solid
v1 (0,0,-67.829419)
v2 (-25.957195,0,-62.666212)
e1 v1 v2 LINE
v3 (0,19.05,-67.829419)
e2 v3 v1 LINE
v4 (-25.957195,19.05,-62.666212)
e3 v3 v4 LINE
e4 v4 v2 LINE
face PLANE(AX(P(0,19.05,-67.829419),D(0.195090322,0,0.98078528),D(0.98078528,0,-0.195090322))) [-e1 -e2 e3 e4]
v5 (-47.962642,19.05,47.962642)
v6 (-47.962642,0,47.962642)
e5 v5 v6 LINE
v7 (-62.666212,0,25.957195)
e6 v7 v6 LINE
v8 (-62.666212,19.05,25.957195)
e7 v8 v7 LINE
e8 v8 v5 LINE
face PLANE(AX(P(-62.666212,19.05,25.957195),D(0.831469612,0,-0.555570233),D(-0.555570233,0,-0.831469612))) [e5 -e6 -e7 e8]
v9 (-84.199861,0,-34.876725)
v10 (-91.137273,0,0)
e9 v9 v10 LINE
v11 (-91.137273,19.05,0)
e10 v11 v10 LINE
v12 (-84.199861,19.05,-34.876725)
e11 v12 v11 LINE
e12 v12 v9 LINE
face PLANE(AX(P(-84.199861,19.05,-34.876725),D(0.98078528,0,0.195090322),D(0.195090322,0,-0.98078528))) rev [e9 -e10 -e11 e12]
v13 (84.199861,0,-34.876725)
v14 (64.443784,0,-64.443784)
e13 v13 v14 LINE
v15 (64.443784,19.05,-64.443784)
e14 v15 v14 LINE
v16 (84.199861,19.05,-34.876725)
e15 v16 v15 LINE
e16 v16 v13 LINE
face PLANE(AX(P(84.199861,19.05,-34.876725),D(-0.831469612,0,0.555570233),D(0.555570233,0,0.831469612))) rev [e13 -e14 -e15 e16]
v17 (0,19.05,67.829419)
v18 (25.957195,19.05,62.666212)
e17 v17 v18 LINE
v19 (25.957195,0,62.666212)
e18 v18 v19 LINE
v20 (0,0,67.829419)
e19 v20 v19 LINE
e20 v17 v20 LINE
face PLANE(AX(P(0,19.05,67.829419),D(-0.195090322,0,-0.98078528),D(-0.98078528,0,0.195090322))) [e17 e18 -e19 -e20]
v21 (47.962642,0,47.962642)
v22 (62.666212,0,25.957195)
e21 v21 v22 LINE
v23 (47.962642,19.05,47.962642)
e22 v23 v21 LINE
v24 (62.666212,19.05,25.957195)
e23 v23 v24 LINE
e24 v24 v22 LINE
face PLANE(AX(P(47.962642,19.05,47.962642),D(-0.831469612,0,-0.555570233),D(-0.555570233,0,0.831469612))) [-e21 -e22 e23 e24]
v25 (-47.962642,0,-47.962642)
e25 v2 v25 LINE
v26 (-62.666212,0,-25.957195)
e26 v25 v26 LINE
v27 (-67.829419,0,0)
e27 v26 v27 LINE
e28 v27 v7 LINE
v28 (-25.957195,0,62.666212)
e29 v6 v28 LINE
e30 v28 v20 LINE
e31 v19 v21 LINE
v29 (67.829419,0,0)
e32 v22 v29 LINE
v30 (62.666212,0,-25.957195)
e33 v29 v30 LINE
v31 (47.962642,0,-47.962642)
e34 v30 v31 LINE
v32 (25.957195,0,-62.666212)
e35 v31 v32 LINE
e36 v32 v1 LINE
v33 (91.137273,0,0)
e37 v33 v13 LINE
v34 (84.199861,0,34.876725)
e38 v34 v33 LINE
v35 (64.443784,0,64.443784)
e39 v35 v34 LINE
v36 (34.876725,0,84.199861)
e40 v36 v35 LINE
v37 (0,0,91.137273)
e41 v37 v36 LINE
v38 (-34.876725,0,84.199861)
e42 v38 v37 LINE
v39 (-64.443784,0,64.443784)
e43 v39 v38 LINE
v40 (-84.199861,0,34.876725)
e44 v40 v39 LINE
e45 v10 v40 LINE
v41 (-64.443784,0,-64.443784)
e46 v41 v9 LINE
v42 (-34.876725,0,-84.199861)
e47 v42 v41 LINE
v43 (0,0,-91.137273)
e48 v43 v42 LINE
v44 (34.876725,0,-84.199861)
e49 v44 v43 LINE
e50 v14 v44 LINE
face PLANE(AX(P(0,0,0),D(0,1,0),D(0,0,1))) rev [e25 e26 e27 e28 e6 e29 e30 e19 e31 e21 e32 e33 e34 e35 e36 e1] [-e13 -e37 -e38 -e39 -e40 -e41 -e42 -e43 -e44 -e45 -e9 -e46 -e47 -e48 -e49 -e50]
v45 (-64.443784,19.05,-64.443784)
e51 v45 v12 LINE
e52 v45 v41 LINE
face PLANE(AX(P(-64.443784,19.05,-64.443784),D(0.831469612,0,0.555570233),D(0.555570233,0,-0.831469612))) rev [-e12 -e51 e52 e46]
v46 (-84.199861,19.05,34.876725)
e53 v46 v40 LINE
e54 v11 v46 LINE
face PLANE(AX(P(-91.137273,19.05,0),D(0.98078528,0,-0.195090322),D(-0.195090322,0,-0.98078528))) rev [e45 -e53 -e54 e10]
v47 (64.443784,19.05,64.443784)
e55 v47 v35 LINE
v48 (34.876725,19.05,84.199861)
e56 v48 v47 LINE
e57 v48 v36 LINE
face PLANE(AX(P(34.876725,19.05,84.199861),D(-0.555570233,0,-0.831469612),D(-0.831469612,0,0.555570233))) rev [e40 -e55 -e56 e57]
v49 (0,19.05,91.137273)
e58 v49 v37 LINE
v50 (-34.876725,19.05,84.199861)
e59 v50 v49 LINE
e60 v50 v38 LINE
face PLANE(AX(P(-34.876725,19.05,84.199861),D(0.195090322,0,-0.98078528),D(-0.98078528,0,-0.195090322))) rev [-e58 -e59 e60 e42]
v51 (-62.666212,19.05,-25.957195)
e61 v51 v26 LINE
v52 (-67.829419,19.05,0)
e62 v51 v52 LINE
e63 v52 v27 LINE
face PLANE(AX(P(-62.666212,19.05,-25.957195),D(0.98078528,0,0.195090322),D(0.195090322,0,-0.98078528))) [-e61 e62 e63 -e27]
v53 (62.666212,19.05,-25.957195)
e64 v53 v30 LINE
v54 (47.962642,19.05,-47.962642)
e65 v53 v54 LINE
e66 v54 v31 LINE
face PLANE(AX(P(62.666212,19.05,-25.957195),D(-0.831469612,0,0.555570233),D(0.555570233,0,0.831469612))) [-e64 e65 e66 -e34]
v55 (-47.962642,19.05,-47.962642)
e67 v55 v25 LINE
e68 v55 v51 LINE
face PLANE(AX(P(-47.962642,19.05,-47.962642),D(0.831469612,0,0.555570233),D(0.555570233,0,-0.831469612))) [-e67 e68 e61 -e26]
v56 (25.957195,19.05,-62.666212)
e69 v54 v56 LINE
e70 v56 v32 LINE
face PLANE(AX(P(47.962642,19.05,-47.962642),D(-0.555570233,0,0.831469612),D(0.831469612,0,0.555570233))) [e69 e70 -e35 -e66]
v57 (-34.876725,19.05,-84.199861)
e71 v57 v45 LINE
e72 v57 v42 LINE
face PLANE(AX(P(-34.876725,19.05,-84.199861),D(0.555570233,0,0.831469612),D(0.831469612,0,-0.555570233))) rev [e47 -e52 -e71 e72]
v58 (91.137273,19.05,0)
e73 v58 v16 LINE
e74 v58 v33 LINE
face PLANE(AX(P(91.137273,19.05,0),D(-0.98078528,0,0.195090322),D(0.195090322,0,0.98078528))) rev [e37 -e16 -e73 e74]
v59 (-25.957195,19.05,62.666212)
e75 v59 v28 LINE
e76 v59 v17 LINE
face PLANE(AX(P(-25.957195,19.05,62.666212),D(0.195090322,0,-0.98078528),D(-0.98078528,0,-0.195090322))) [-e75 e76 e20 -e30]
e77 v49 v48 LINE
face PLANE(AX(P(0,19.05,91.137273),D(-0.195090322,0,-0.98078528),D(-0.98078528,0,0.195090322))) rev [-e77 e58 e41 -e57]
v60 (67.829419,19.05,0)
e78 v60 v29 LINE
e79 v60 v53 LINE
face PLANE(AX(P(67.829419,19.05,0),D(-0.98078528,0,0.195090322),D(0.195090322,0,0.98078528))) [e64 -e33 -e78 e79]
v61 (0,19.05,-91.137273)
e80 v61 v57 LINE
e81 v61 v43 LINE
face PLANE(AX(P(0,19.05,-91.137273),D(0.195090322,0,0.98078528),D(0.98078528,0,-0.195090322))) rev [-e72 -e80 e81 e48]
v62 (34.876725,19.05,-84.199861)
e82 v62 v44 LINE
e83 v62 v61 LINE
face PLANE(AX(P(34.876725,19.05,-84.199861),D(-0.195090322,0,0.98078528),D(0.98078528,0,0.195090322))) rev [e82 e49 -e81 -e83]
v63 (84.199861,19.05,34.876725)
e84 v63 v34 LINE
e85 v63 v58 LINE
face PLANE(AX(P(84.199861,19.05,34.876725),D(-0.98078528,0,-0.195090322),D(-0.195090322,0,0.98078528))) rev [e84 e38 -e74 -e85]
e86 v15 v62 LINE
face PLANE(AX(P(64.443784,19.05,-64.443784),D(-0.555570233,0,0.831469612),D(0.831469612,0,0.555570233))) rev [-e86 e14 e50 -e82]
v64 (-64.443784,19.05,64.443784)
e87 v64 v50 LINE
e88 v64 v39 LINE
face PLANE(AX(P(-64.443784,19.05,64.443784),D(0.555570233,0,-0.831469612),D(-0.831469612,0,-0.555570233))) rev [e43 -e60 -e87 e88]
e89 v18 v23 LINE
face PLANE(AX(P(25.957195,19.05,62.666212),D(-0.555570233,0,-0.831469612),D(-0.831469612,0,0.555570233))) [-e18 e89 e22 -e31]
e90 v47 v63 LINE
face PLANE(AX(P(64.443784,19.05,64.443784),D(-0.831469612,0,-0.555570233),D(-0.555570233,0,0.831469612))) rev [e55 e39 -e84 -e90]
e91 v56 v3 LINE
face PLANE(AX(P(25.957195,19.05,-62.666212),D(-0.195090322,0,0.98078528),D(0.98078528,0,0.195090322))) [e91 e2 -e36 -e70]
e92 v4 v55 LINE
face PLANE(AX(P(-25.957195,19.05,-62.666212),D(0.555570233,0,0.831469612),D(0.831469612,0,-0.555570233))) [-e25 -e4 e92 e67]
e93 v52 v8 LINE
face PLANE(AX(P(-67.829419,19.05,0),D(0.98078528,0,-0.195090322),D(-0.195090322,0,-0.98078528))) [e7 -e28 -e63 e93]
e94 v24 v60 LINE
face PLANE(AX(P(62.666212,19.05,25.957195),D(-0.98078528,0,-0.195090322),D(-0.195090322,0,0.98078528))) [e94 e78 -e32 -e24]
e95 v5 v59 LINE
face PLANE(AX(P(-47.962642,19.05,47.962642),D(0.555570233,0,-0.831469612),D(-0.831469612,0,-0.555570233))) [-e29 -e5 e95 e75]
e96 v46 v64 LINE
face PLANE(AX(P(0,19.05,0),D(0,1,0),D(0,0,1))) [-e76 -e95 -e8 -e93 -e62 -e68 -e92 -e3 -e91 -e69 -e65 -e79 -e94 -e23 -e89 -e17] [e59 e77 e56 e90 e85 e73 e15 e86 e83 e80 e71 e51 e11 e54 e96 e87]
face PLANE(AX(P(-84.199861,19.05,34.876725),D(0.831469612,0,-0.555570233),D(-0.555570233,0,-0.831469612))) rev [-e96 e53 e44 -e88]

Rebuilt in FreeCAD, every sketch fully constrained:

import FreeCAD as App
import Part
import Sketcher
from FreeCAD import Vector
Q = App.Units.Quantity


def add_polygon(sketch, points):
    """Adds a closed chain of lines whose ends are joined by coincident constraints."""
    first, n = sketch.GeometryCount, len(points)
    for a, b in zip(points, points[1:] + points[:1]):
        sketch.addGeometry(Part.LineSegment(App.Vector(*a, 0), App.Vector(*b, 0)), False)
    for i in range(n):
        sketch.addConstraint(Sketcher.Constraint("Coincident", first + i, 2, first + (i + 1) % n, 1))

doc = App.newDocument("Part")
params = doc.addObject("Spreadsheet::Sheet", "Params")
for row, (alias, value) in enumerate([
    ("sketch1_length", "1.4 in"),
    ("pad1_length", "0.75 in"),
], start=1):
    params.set(f"A{row}", alias)
    params.set(f"B{row}", "=" + value)
    params.setAlias(f"B{row}", alias)

body = doc.addObject("PartDesign::Body", "Body")

# Sketch on XZ plane
sketch1 = body.newObject("Sketcher::SketchObject", "Sketch")
sketch1.AttachmentSupport = (doc.getObject("XZ_Plane"), [""])
sketch1.MapMode = "FlatFace"
add_polygon(sketch1, [(91, 0), (84, -35), (64, -64), (35, -84), (0, -91), (-35, -84), (-64, -64), (-84, -35), (-91, 0), (-84, 35), (-64, 64), (-35, 84), (0, 91), (35, 84), (64, 64), (84, 35)])  # lines 0-15
add_polygon(sketch1, [(63, -26), (68, 0), (63, 26), (48, 48), (26, 63), (0, 68), (-26, 63), (-48, 48), (-63, 26), (-68, 0), (-63, -26), (-48, -48), (-26, -63), (0, -68), (26, -63), (48, -48)])  # lines 16-31
sketch1.addConstraint(Sketcher.Constraint("Symmetric", 0, 2, 8, 2, -1, 1))
sketch1.addConstraint(Sketcher.Constraint("Symmetric", 1, 2, 9, 2, -1, 1))
sketch1.addConstraint(Sketcher.Constraint("Symmetric", 2, 2, 10, 2, -1, 1))
sketch1.addConstraint(Sketcher.Constraint("Symmetric", 3, 2, 11, 2, -1, 1))
sketch1.addConstraint(Sketcher.Constraint("Symmetric", 4, 2, 12, 2, -1, 1))
sketch1.addConstraint(Sketcher.Constraint("Symmetric", 5, 2, 13, 2, -1, 1))
sketch1.addConstraint(Sketcher.Constraint("Symmetric", 6, 2, 14, 2, -1, 1))
sketch1.addConstraint(Sketcher.Constraint("Symmetric", 7, 2, 15, 2, -1, 1))
sketch1.addConstraint(Sketcher.Constraint("Symmetric", 16, 2, 24, 2, -1, 1))
sketch1.addConstraint(Sketcher.Constraint("Symmetric", 17, 2, 25, 2, -1, 1))
sketch1.addConstraint(Sketcher.Constraint("Symmetric", 18, 2, 26, 2, -1, 1))
sketch1.addConstraint(Sketcher.Constraint("Symmetric", 19, 2, 27, 2, -1, 1))
sketch1.addConstraint(Sketcher.Constraint("Symmetric", 20, 2, 28, 2, -1, 1))
sketch1.addConstraint(Sketcher.Constraint("Symmetric", 21, 2, 29, 2, -1, 1))
sketch1.addConstraint(Sketcher.Constraint("Symmetric", 22, 2, 30, 2, -1, 1))
sketch1.addConstraint(Sketcher.Constraint("Symmetric", 23, 2, 31, 2, -1, 1))
sketch1.addConstraint(Sketcher.Constraint("Symmetric", 2, 2, 4, 2, -2))
sketch1.addConstraint(Sketcher.Constraint("Symmetric", 1, 2, 5, 2, -2))
sketch1.addConstraint(Sketcher.Constraint("Symmetric", 0, 2, 6, 2, -2))
sketch1.addConstraint(Sketcher.Constraint("Symmetric", 19, 2, 21, 2, -2))
sketch1.addConstraint(Sketcher.Constraint("Symmetric", 18, 2, 22, 2, -2))
sketch1.addConstraint(Sketcher.Constraint("Symmetric", 17, 2, 23, 2, -2))
sketch1.addConstraint(Sketcher.Constraint("PointOnObject", 3, 2, -2))
sketch1.addConstraint(Sketcher.Constraint("PointOnObject", 7, 2, -1))
sketch1.addConstraint(Sketcher.Constraint("PointOnObject", 16, 2, -1))
sketch1.addConstraint(Sketcher.Constraint("PointOnObject", 20, 2, -2))
sketch1.addConstraint(Sketcher.Constraint("Perpendicular", 0, 4))
sketch1.addConstraint(Sketcher.Constraint("Perpendicular", 1, 5))
sketch1.addConstraint(Sketcher.Constraint("Perpendicular", 12, 16))
sketch1.addConstraint(Sketcher.Constraint("Parallel", 14, 18))
sketch1.addConstraint(Sketcher.Constraint("Parallel", 13, 19))
sketch1.addConstraint(Sketcher.Constraint("Perpendicular", 16, 20))
sketch1.addConstraint(Sketcher.Constraint("Equal", 0, 1))
sketch1.addConstraint(Sketcher.Constraint("Equal", 1, 2))
sketch1.addConstraint(Sketcher.Constraint("Equal", 2, 3))
sketch1.addConstraint(Sketcher.Constraint("Equal", 17, 18))
sketch1.addConstraint(Sketcher.Constraint("Equal", 18, 19))
sketch1.addConstraint(Sketcher.Constraint("Equal", 19, 20))
sketch1.addConstraint(Sketcher.Constraint("Distance", 0, Q("1.4 in")))
sketch1.addConstraint(Sketcher.Constraint("Angle", 0, Q("-101.25 deg")))
sketch1.addConstraint(Sketcher.Constraint("Angle", 1, Q("-123.75 deg")))
sketch1.addConstraint(Sketcher.Constraint("DistanceX", -1, 1, 16, 2, 67.829419))
sketch1.setExpression("Constraints[70]", "Params.sketch1_length")
pad1 = body.newObject("PartDesign::Pad", "Pad")
pad1.Profile = sketch1
pad1.setExpression("Length", "Params.pad1_length")
pad1.Reversed = True

doc.recompute()
